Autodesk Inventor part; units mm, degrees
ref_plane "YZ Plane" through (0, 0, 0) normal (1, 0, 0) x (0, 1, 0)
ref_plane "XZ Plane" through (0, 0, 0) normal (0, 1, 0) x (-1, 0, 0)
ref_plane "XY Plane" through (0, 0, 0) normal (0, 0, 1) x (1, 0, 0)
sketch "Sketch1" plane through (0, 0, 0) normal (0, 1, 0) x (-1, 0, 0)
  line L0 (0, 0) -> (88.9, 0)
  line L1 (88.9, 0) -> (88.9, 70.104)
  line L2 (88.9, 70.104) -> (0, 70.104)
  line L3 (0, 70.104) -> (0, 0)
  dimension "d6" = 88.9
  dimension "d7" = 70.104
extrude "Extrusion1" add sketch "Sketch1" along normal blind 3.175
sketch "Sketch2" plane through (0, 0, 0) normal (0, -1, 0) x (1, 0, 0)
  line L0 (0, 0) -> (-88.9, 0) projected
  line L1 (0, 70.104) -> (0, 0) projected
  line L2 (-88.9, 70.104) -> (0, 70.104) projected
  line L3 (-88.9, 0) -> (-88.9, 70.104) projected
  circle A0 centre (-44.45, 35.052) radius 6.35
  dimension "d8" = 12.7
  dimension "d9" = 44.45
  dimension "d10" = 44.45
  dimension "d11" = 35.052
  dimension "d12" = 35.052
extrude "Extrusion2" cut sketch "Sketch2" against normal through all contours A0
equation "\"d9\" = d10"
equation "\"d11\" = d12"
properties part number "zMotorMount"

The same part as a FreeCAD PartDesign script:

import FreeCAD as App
import Part
import Sketcher

V = App.Vector
Q = App.Units.Quantity

doc = App.newDocument("Part")
body = doc.addObject("PartDesign::Body", "Body")

sketch1 = body.newObject("Sketcher::SketchObject", "Sketch")
sketch1.AttachmentSupport = (doc.getObject("XZ_Plane"), [""])
sketch1.MapMode = "FlatFace"
sketch1.addGeometry(Part.LineSegment(V(0, 70, 0), V(0, 0, 0)), False)
sketch1.addGeometry(Part.LineSegment(V(0, 0, 0), V(-89, 0, 0)), False)
sketch1.addGeometry(Part.LineSegment(V(-89, 0, 0), V(-89, 70, 0)), False)
sketch1.addGeometry(Part.LineSegment(V(-89, 70, 0), V(0, 70, 0)), False)
sketch1.addConstraint(Sketcher.Constraint("Coincident", 0, 2, 1, 1))
sketch1.addConstraint(Sketcher.Constraint("Coincident", 1, 2, 2, 1))
sketch1.addConstraint(Sketcher.Constraint("Coincident", 2, 2, 3, 1))
sketch1.addConstraint(Sketcher.Constraint("Coincident", 3, 2, 0, 1))
sketch1.addConstraint(Sketcher.Constraint("Vertical", 0))
sketch1.addConstraint(Sketcher.Constraint("Horizontal", 1))
sketch1.addConstraint(Sketcher.Constraint("Vertical", 2))
sketch1.addConstraint(Sketcher.Constraint("Horizontal", 3))
sketch1.addConstraint(Sketcher.Constraint("Coincident", 0, 2, -1, 1))
sketch1.addConstraint(Sketcher.Constraint("DistanceX", 1, 2, 1, 1, Q("3.5 in")))
sketch1.addConstraint(Sketcher.Constraint("DistanceY", 0, 2, 0, 1, Q("2.76 in")))
pad1 = body.newObject("PartDesign::Pad", "Pad")
pad1.Profile = sketch1
pad1.Length = Q("0.125 in")
pad1.Reversed = True

sketch2 = body.newObject("Sketcher::SketchObject", "Sketch001")
sketch2.AttachmentSupport = (doc.getObject("XZ_Plane"), [""])
sketch2.MapMode = "FlatFace"
sketch2.addGeometry(Part.Circle(V(-44, 35, 0), V(0, 0, 1), 6), False)
sketch2.addConstraint(Sketcher.Constraint("Diameter", 0, Q("0.5 in")))
sketch2.addConstraint(Sketcher.Constraint("DistanceX", 0, 3, -1, 1, Q("1.75 in")))
sketch2.addConstraint(Sketcher.Constraint("DistanceY", -1, 1, 0, 3, Q("1.38 in")))
pocket1 = body.newObject("PartDesign::Pocket", "Pocket")
pocket1.Profile = sketch2
pocket1.Type = "ThroughAll"

doc.recompute()
